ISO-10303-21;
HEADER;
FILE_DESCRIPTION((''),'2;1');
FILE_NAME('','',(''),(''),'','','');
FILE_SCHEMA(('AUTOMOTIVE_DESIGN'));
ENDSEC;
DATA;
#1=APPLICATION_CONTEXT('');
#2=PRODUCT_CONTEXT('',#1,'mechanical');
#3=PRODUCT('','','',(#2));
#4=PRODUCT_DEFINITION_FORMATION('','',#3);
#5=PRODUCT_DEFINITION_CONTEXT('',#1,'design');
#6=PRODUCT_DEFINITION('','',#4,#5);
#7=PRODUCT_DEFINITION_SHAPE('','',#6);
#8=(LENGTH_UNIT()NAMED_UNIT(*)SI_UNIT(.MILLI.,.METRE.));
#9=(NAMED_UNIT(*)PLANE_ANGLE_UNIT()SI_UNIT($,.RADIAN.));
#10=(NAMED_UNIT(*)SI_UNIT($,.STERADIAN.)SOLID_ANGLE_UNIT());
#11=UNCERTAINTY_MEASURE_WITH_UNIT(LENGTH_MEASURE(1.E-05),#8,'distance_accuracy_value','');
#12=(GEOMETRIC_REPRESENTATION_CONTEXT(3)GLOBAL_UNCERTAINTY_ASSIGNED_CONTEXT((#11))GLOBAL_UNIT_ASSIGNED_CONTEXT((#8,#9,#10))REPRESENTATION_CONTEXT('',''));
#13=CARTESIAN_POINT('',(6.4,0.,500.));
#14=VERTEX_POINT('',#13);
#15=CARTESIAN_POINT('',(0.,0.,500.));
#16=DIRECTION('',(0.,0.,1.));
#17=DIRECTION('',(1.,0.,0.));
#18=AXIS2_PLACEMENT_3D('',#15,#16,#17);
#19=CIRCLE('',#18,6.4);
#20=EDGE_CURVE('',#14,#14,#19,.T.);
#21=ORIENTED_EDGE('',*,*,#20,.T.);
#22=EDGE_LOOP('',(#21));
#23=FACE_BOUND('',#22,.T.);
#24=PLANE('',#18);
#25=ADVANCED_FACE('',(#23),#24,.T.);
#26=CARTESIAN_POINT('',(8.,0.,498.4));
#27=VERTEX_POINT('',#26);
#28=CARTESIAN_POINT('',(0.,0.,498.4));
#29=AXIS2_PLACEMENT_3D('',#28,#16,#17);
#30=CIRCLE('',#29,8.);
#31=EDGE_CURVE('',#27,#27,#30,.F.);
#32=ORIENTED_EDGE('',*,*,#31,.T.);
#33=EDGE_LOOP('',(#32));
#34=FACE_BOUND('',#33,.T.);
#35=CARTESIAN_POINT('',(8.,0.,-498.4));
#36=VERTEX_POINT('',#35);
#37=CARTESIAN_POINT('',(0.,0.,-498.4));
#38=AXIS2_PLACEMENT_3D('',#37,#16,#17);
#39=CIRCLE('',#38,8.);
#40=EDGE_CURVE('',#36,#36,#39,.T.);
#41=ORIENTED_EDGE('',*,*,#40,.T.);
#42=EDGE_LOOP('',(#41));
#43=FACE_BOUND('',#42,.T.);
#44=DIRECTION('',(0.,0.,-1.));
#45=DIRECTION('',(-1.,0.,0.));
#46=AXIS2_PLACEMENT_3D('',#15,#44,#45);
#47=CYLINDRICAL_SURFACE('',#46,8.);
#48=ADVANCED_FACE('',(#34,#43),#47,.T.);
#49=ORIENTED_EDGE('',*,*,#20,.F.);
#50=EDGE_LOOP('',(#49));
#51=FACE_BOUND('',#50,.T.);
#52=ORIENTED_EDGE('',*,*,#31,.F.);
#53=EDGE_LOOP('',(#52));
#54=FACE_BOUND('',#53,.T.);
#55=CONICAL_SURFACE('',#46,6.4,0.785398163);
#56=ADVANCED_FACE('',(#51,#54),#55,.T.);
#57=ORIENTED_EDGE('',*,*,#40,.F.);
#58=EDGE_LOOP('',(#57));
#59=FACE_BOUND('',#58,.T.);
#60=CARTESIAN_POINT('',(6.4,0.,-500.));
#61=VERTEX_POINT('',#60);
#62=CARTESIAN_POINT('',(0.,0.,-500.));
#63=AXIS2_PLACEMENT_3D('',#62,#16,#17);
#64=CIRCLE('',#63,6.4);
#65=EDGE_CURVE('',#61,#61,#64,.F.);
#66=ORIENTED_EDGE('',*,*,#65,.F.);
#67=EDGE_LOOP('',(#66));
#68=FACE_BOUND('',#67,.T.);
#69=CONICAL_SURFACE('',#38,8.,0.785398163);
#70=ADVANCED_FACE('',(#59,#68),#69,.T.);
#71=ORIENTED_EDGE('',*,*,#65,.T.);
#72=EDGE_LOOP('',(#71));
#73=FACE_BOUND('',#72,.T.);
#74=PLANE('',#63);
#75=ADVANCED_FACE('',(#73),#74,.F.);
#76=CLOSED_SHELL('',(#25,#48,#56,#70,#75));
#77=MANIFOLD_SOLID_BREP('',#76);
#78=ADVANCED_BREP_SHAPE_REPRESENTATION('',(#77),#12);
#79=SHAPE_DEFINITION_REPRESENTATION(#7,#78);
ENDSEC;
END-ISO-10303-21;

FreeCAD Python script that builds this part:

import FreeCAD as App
import Part
import Sketcher

V = App.Vector


def edges_at(feature, points):
    """Names of the edges that pass closest to the given points."""
    edges = feature.Shape.Edges
    near = lambda p: min(range(len(edges)), key=lambda i: edges[i].distToShape(Part.Vertex(*p))[0])
    return sorted({f"Edge{near(p) + 1}" for p in points})

doc = App.newDocument("Part")
body = doc.addObject("PartDesign::Body", "Body")

# Sketch on XY plane
sketch1 = body.newObject("Sketcher::SketchObject", "Sketch")
sketch1.AttachmentSupport = (doc.getObject("XY_Plane"), [""])
sketch1.MapMode = "FlatFace"
sketch1.addGeometry(Part.Circle(V(0, 0, 0), V(0, 0, 1), 8), False)
sketch1.addConstraint([
    Sketcher.Constraint("Coincident", 0, 3, -1, 1),
    Sketcher.Constraint("Diameter", 0, 16.0),
])
pad1 = body.newObject("PartDesign::Pad", "Pad")
pad1.Profile = sketch1
pad1.Length = 1000
pad1.Midplane = True
doc.recompute()

chamfer = body.newObject("PartDesign::Chamfer", "Chamfer")
chamfer.Base = (pad1, edges_at(pad1, [(-8, 0, -500), (-8, 0, 500)]))
chamfer.Size = 1.6

doc.recompute()
